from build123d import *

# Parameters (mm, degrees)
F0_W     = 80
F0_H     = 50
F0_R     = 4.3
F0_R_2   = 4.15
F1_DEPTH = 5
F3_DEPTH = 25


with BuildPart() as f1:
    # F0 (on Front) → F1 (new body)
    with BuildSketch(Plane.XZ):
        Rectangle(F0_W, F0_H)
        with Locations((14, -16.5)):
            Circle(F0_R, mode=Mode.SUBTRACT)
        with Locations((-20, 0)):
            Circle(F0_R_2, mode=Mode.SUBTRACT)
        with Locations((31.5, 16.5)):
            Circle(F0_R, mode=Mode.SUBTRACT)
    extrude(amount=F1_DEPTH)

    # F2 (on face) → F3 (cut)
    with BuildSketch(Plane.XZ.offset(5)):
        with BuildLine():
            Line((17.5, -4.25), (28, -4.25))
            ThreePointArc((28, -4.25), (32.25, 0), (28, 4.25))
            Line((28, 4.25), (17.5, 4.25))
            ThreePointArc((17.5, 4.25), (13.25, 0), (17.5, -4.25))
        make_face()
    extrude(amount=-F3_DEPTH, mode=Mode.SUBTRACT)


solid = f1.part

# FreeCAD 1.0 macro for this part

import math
import FreeCAD as App
import Part
import Sketcher

doc = App.newDocument("Part")
params = doc.addObject("Spreadsheet::Sheet", "Params")
for row, (alias, value) in enumerate([
    ("sketch1_diameter", "8.6 mm"),
    ("sketch1_diameter2", "8.3 mm"),
    ("sketch1_width", "80 mm"),
    ("sketch1_height", "50 mm"),
    ("pad1_length", "5 mm"),
    ("sketch2_radius", "4.25 mm"),
    ("sketch2_width", "10.5 mm"),
    ("pocket1_length", "25 mm"),
], start=1):
    params.set(f"A{row}", alias)
    params.set(f"B{row}", "=" + value)
    params.setAlias(f"B{row}", alias)

body = doc.addObject("PartDesign::Body", "Body")

# Sketch on XZ plane
sketch1 = body.newObject("Sketcher::SketchObject", "Sketch")
sketch1.AttachmentSupport = (doc.getObject("XZ_Plane"), [""])
sketch1.MapMode = "FlatFace"
sketch1.addGeometry(Part.LineSegment(App.Vector(-40, 25, 0), App.Vector(-40, -25, 0)), False)
sketch1.addGeometry(Part.LineSegment(App.Vector(-40, -25, 0), App.Vector(40, -25, 0)), False)
sketch1.addGeometry(Part.LineSegment(App.Vector(40, -25, 0), App.Vector(40, 25, 0)), False)
sketch1.addGeometry(Part.LineSegment(App.Vector(40, 25, 0), App.Vector(-40, 25, 0)), False)
sketch1.addGeometry(Part.Circle(App.Vector(14, -16.5, 0), App.Vector(0, 0, 1), 4.3), False)
sketch1.addGeometry(Part.Circle(App.Vector(-20, 0, 0), App.Vector(0, 0, 1), 4.2), False)
sketch1.addGeometry(Part.Circle(App.Vector(31.5, 16.5, 0), App.Vector(0, 0, 1), 4.3), False)
sketch1.addConstraint(Sketcher.Constraint("Coincident", 0, 2, 1, 1))
sketch1.addConstraint(Sketcher.Constraint("Coincident", 1, 2, 2, 1))
sketch1.addConstraint(Sketcher.Constraint("Coincident", 2, 2, 3, 1))
sketch1.addConstraint(Sketcher.Constraint("Coincident", 3, 2, 0, 1))
sketch1.addConstraint(Sketcher.Constraint("Vertical", 0))
sketch1.addConstraint(Sketcher.Constraint("Horizontal", 1))
sketch1.addConstraint(Sketcher.Constraint("Vertical", 2))
sketch1.addConstraint(Sketcher.Constraint("Horizontal", 3))
sketch1.addConstraint(Sketcher.Constraint("Equal", 4, 6))
sketch1.addConstraint(Sketcher.Constraint("Symmetric", 0, 2, 2, 2, -1, 1))
sketch1.addConstraint(Sketcher.Constraint("PointOnObject", 5, 3, -1))
sketch1.addConstraint(Sketcher.Constraint("Diameter", 4, 8.6))
sketch1.addConstraint(Sketcher.Constraint("Diameter", 5, 8.3))
sketch1.addConstraint(Sketcher.Constraint("DistanceX", 1, 1, 1, 2, 80.0))
sketch1.addConstraint(Sketcher.Constraint("DistanceY", 0, 2, 0, 1, 50.0))
sketch1.addConstraint(Sketcher.Constraint("DistanceX", -1, 1, 4, 3, 14.0))
sketch1.addConstraint(Sketcher.Constraint("DistanceX", 5, 3, -1, 1, 20.0))
sketch1.addConstraint(Sketcher.Constraint("DistanceY", 4, 3, 6, 3, 33.0))
sketch1.addConstraint(Sketcher.Constraint("DistanceY", 4, 3, -1, 1, 16.5))
sketch1.addConstraint(Sketcher.Constraint("DistanceX", -1, 1, 6, 3, 31.5))
sketch1.setExpression("Constraints[11]", "Params.sketch1_diameter")
sketch1.setExpression("Constraints[12]", "Params.sketch1_diameter2")
sketch1.setExpression("Constraints[13]", "Params.sketch1_width")
sketch1.setExpression("Constraints[14]", "Params.sketch1_height")
pad1 = body.newObject("PartDesign::Pad", "Pad")
pad1.Profile = sketch1
pad1.setExpression("Length", "Params.pad1_length")

# Sketch on XZ plane
sketch2 = body.newObject("Sketcher::SketchObject", "Sketch001")
sketch2.AttachmentSupport = (doc.getObject("XZ_Plane"), [""])
sketch2.MapMode = "FlatFace"
sketch2.AttachmentOffset = App.Placement(App.Vector(0, 0, 5), App.Rotation())
sketch2.addGeometry(Part.LineSegment(App.Vector(17.5, -4.2, 0), App.Vector(28, -4.2, 0)), False)
sketch2.addGeometry(Part.ArcOfCircle(Part.Circle(App.Vector(28, 0, 0), App.Vector(0, 0, 1), 4.2), math.radians(-90), math.radians(90)), False)
sketch2.addGeometry(Part.LineSegment(App.Vector(28, 4.2, 0), App.Vector(17.5, 4.2, 0)), False)
sketch2.addGeometry(Part.ArcOfCircle(Part.Circle(App.Vector(17.5, 0, 0), App.Vector(0, 0, 1), 4.2), math.radians(90), math.radians(270)), False)
sketch2.addConstraint(Sketcher.Constraint("Tangent", 0, 2, 1, 1))
sketch2.addConstraint(Sketcher.Constraint("Tangent", 1, 2, 2, 1))
sketch2.addConstraint(Sketcher.Constraint("Tangent", 2, 2, 3, 1))
sketch2.addConstraint(Sketcher.Constraint("Tangent", 3, 2, 0, 1))
sketch2.addConstraint(Sketcher.Constraint("Horizontal", 0))
sketch2.addConstraint(Sketcher.Constraint("Horizontal", 2))
sketch2.addConstraint(Sketcher.Constraint("PointOnObject", 1, 3, -1))
sketch2.addConstraint(Sketcher.Constraint("Radius", 1, 4.25))
sketch2.addConstraint(Sketcher.Constraint("DistanceX", 0, 1, 0, 2, 10.5))
sketch2.addConstraint(Sketcher.Constraint("DistanceX", -1, 1, 1, 3, 28.0))
sketch2.setExpression("Constraints[7]", "Params.sketch2_radius")
sketch2.setExpression("Constraints[8]", "Params.sketch2_width")
pocket1 = body.newObject("PartDesign::Pocket", "Pocket")
pocket1.Profile = sketch2
pocket1.setExpression("Length", "Params.pocket1_length")

doc.recompute()
